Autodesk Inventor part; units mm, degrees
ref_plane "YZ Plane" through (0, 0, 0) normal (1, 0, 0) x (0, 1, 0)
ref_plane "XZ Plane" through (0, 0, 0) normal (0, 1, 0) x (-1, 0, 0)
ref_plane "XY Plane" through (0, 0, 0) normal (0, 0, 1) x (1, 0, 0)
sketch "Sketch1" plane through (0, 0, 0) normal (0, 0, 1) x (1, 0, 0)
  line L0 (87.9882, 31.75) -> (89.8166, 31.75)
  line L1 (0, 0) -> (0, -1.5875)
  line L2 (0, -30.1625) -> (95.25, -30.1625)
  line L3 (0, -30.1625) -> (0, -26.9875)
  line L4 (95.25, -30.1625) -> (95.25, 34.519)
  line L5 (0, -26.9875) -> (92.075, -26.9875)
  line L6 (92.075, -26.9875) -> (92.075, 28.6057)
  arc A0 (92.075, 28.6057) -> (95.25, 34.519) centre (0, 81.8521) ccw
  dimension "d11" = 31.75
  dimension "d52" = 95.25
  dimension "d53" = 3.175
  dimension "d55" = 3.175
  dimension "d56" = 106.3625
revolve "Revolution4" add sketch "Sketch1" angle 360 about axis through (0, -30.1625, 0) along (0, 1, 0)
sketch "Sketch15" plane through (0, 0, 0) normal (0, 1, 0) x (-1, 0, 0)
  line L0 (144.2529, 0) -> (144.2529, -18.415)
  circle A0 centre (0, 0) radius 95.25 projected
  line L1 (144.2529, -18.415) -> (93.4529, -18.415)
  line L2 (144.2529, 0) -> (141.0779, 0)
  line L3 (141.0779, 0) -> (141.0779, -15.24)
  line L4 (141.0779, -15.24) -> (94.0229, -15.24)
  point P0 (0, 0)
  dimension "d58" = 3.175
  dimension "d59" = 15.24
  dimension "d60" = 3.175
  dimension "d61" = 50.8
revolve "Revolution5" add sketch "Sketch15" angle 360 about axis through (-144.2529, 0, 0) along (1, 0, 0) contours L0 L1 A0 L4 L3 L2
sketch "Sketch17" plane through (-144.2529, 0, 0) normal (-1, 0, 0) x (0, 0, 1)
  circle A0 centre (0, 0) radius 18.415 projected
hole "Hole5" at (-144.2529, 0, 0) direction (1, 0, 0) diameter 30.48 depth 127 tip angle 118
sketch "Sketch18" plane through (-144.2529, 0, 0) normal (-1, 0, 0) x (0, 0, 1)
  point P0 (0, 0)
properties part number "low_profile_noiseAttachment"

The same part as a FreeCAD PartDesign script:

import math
import FreeCAD as App
import Part
import Sketcher
from FreeCAD import Vector
Q = App.Units.Quantity

doc = App.newDocument("Part")
params = doc.addObject("Spreadsheet::Sheet", "Params")
for row, (alias, value) in enumerate([
    ("sketch1_radius", "4.1875 in"),
    ("sketch1_width", "3.75 in"),
    ("sketch1_height", "0.125 in"),
    ("revolution_angle", "360 deg"),
    ("sketch2_width", "2 in"),
    ("sketch2_height", "0.6 in"),
    ("sketch2_width2", "0.125 in"),
    ("sketch2_radius", "3.75 in"),
    ("revolution2_angle", "360 deg"),
    ("sketch3_diameter", "1.2 in"),
    ("hole_diameter", "1.2 in"),
    ("hole_depth", "5 in"),
], start=1):
    params.set(f"A{row}", alias)
    params.set(f"B{row}", "=" + value)
    params.setAlias(f"B{row}", alias)

body = doc.addObject("PartDesign::Body", "Body")

# Sketch on XY plane
sketch1 = body.newObject("Sketcher::SketchObject", "Sketch")
sketch1.AttachmentSupport = (doc.getObject("XY_Plane"), [""])
sketch1.MapMode = "FlatFace"
sketch1.addGeometry([
    Part.LineSegment(Vector(0, -27, 0), Vector(0, -30.2, 0)),  # 0
    Part.LineSegment(Vector(0, -30.2, 0), Vector(95.2, -30.2, 0)),  # 1
    Part.LineSegment(Vector(95.2, -30.2, 0), Vector(95.2, 34.5, 0)),  # 2
    Part.ArcOfCircle(Part.Circle(Vector(0, 81.9, 0), Vector(0, 0, 1), 106.4), math.radians(-30.04), math.radians(-26.42)),  # 3
    Part.LineSegment(Vector(92.1, 28.6, 0), Vector(92.1, -27, 0)),  # 4
    Part.LineSegment(Vector(92.1, -27, 0), Vector(0, -27, 0)),  # 5
], False)
sketch1.addConstraint([
    Sketcher.Constraint("Coincident", 0, 2, 1, 1),
    Sketcher.Constraint("Coincident", 1, 2, 2, 1),
    Sketcher.Constraint("Coincident", 2, 2, 3, 2),
    Sketcher.Constraint("Coincident", 3, 1, 4, 1),
    Sketcher.Constraint("Coincident", 4, 2, 5, 1),
    Sketcher.Constraint("Coincident", 5, 2, 0, 1),
    Sketcher.Constraint("Vertical", 0),
    Sketcher.Constraint("Horizontal", 1),
    Sketcher.Constraint("Vertical", 2),
    Sketcher.Constraint("Vertical", 4),
    Sketcher.Constraint("Horizontal", 5),
    Sketcher.Constraint("PointOnObject", 3, 3, -2),
    Sketcher.Constraint("PointOnObject", 0, 2, -2),
    Sketcher.Constraint("Radius", 3, Q("4.1875 in")),
    Sketcher.Constraint("DistanceX", 1, 1, 1, 2, Q("3.75 in")),
    Sketcher.Constraint("DistanceY", 0, 2, 0, 1, Q("0.125 in")),
    Sketcher.Constraint("DistanceX", 3, 1, 2, 2, Q("0.125 in")),
    Sketcher.Constraint("DistanceY", 4, 2, 4, 1, Q("2.1887 in")),
    Sketcher.Constraint("DistanceY", 0, 2, -1, 1, Q("1.1875 in")),
])
sketch1.setExpression("Constraints[13]", "Params.sketch1_radius")
sketch1.setExpression("Constraints[14]", "Params.sketch1_width")
sketch1.setExpression("Constraints[15]", "Params.sketch1_height")
revolution = body.newObject("PartDesign::Revolution", "Revolution")
revolution.Profile = sketch1
revolution.ReferenceAxis = (sketch1, ["V_Axis"])
revolution.setExpression("Angle", "Params.revolution_angle")

# Sketch on XZ plane
sketch2 = body.newObject("Sketcher::SketchObject", "Sketch001")
sketch2.AttachmentSupport = (doc.getObject("XZ_Plane"), [""])
sketch2.MapMode = "FlatFace"
sketch2.addGeometry([
    Part.LineSegment(Vector(-144.3, -18.4, 0), Vector(-144.3, 0, 0)),  # 0
    Part.LineSegment(Vector(-144.3, 0, 0), Vector(-141.1, 0, 0)),  # 1
    Part.LineSegment(Vector(-141.1, 0, 0), Vector(-141.1, -15.2, 0)),  # 2
    Part.LineSegment(Vector(-141.1, -15.2, 0), Vector(-94, -15.2, 0)),  # 3
    Part.ArcOfCircle(Part.Circle(Vector(0, 0, 0), Vector(0, 0, 1), 95.2), math.radians(-170.79), math.radians(-168.85)),  # 4
    Part.LineSegment(Vector(-93.5, -18.4, 0), Vector(-144.3, -18.4, 0)),  # 5
], False)
sketch2.addConstraint([
    Sketcher.Constraint("Coincident", 0, 2, 1, 1),
    Sketcher.Constraint("Coincident", 1, 2, 2, 1),
    Sketcher.Constraint("Coincident", 2, 2, 3, 1),
    Sketcher.Constraint("Coincident", 3, 2, 4, 1),
    Sketcher.Constraint("Coincident", 4, 2, 5, 1),
    Sketcher.Constraint("Coincident", 5, 2, 0, 1),
    Sketcher.Constraint("Vertical", 0),
    Sketcher.Constraint("Horizontal", 1),
    Sketcher.Constraint("Vertical", 2),
    Sketcher.Constraint("Horizontal", 3),
    Sketcher.Constraint("Horizontal", 5),
    Sketcher.Constraint("Coincident", 4, 3, -1, 1),
    Sketcher.Constraint("PointOnObject", 0, 2, -1),
    Sketcher.Constraint("DistanceX", 5, 2, 5, 1, Q("2 in")),
    Sketcher.Constraint("DistanceY", 2, 2, 2, 1, Q("0.6 in")),
    Sketcher.Constraint("DistanceX", 1, 1, 1, 2, Q("0.125 in")),
    Sketcher.Constraint("Radius", 4, Q("3.75 in")),
    Sketcher.Constraint("DistanceY", 4, 2, 3, 2, Q("0.125 in")),
])
sketch2.setExpression("Constraints[13]", "Params.sketch2_width")
sketch2.setExpression("Constraints[14]", "Params.sketch2_height")
sketch2.setExpression("Constraints[15]", "Params.sketch2_width2")
sketch2.setExpression("Constraints[16]", "Params.sketch2_radius")
revolution2 = body.newObject("PartDesign::Revolution", "Revolution001")
revolution2.Profile = sketch2
revolution2.ReferenceAxis = (sketch2, ["H_Axis"])
revolution2.setExpression("Angle", "Params.revolution2_angle")

# Sketch on YZ plane
sketch3 = body.newObject("Sketcher::SketchObject", "Sketch002")
sketch3.AttachmentSupport = (doc.getObject("YZ_Plane"), [""])
sketch3.MapMode = "FlatFace"
sketch3.AttachmentOffset = App.Placement(Vector(0, 0, -144.2529), App.Rotation())
sketch3.addGeometry(Part.Circle(Vector(0, 0, 0), Vector(0, 0, 1), 15), False)
sketch3.addConstraint([
    Sketcher.Constraint("Coincident", 0, 3, -1, 1),
    Sketcher.Constraint("Diameter", 0, Q("1.2 in")),
])
sketch3.setExpression("Constraints[1]", "Params.sketch3_diameter")
doc.recompute()
hole = body.newObject("PartDesign::Hole", "Hole")
hole.Profile = sketch3
hole.ThreadType = "None"
hole.setExpression("Diameter", "Params.hole_diameter")
hole.DepthType = "Dimension"
hole.setExpression("Depth", "Params.hole_depth")
hole.DrillPoint = "Angled"
hole.DrillPointAngle = 118
hole.Reversed = True

doc.recompute()
